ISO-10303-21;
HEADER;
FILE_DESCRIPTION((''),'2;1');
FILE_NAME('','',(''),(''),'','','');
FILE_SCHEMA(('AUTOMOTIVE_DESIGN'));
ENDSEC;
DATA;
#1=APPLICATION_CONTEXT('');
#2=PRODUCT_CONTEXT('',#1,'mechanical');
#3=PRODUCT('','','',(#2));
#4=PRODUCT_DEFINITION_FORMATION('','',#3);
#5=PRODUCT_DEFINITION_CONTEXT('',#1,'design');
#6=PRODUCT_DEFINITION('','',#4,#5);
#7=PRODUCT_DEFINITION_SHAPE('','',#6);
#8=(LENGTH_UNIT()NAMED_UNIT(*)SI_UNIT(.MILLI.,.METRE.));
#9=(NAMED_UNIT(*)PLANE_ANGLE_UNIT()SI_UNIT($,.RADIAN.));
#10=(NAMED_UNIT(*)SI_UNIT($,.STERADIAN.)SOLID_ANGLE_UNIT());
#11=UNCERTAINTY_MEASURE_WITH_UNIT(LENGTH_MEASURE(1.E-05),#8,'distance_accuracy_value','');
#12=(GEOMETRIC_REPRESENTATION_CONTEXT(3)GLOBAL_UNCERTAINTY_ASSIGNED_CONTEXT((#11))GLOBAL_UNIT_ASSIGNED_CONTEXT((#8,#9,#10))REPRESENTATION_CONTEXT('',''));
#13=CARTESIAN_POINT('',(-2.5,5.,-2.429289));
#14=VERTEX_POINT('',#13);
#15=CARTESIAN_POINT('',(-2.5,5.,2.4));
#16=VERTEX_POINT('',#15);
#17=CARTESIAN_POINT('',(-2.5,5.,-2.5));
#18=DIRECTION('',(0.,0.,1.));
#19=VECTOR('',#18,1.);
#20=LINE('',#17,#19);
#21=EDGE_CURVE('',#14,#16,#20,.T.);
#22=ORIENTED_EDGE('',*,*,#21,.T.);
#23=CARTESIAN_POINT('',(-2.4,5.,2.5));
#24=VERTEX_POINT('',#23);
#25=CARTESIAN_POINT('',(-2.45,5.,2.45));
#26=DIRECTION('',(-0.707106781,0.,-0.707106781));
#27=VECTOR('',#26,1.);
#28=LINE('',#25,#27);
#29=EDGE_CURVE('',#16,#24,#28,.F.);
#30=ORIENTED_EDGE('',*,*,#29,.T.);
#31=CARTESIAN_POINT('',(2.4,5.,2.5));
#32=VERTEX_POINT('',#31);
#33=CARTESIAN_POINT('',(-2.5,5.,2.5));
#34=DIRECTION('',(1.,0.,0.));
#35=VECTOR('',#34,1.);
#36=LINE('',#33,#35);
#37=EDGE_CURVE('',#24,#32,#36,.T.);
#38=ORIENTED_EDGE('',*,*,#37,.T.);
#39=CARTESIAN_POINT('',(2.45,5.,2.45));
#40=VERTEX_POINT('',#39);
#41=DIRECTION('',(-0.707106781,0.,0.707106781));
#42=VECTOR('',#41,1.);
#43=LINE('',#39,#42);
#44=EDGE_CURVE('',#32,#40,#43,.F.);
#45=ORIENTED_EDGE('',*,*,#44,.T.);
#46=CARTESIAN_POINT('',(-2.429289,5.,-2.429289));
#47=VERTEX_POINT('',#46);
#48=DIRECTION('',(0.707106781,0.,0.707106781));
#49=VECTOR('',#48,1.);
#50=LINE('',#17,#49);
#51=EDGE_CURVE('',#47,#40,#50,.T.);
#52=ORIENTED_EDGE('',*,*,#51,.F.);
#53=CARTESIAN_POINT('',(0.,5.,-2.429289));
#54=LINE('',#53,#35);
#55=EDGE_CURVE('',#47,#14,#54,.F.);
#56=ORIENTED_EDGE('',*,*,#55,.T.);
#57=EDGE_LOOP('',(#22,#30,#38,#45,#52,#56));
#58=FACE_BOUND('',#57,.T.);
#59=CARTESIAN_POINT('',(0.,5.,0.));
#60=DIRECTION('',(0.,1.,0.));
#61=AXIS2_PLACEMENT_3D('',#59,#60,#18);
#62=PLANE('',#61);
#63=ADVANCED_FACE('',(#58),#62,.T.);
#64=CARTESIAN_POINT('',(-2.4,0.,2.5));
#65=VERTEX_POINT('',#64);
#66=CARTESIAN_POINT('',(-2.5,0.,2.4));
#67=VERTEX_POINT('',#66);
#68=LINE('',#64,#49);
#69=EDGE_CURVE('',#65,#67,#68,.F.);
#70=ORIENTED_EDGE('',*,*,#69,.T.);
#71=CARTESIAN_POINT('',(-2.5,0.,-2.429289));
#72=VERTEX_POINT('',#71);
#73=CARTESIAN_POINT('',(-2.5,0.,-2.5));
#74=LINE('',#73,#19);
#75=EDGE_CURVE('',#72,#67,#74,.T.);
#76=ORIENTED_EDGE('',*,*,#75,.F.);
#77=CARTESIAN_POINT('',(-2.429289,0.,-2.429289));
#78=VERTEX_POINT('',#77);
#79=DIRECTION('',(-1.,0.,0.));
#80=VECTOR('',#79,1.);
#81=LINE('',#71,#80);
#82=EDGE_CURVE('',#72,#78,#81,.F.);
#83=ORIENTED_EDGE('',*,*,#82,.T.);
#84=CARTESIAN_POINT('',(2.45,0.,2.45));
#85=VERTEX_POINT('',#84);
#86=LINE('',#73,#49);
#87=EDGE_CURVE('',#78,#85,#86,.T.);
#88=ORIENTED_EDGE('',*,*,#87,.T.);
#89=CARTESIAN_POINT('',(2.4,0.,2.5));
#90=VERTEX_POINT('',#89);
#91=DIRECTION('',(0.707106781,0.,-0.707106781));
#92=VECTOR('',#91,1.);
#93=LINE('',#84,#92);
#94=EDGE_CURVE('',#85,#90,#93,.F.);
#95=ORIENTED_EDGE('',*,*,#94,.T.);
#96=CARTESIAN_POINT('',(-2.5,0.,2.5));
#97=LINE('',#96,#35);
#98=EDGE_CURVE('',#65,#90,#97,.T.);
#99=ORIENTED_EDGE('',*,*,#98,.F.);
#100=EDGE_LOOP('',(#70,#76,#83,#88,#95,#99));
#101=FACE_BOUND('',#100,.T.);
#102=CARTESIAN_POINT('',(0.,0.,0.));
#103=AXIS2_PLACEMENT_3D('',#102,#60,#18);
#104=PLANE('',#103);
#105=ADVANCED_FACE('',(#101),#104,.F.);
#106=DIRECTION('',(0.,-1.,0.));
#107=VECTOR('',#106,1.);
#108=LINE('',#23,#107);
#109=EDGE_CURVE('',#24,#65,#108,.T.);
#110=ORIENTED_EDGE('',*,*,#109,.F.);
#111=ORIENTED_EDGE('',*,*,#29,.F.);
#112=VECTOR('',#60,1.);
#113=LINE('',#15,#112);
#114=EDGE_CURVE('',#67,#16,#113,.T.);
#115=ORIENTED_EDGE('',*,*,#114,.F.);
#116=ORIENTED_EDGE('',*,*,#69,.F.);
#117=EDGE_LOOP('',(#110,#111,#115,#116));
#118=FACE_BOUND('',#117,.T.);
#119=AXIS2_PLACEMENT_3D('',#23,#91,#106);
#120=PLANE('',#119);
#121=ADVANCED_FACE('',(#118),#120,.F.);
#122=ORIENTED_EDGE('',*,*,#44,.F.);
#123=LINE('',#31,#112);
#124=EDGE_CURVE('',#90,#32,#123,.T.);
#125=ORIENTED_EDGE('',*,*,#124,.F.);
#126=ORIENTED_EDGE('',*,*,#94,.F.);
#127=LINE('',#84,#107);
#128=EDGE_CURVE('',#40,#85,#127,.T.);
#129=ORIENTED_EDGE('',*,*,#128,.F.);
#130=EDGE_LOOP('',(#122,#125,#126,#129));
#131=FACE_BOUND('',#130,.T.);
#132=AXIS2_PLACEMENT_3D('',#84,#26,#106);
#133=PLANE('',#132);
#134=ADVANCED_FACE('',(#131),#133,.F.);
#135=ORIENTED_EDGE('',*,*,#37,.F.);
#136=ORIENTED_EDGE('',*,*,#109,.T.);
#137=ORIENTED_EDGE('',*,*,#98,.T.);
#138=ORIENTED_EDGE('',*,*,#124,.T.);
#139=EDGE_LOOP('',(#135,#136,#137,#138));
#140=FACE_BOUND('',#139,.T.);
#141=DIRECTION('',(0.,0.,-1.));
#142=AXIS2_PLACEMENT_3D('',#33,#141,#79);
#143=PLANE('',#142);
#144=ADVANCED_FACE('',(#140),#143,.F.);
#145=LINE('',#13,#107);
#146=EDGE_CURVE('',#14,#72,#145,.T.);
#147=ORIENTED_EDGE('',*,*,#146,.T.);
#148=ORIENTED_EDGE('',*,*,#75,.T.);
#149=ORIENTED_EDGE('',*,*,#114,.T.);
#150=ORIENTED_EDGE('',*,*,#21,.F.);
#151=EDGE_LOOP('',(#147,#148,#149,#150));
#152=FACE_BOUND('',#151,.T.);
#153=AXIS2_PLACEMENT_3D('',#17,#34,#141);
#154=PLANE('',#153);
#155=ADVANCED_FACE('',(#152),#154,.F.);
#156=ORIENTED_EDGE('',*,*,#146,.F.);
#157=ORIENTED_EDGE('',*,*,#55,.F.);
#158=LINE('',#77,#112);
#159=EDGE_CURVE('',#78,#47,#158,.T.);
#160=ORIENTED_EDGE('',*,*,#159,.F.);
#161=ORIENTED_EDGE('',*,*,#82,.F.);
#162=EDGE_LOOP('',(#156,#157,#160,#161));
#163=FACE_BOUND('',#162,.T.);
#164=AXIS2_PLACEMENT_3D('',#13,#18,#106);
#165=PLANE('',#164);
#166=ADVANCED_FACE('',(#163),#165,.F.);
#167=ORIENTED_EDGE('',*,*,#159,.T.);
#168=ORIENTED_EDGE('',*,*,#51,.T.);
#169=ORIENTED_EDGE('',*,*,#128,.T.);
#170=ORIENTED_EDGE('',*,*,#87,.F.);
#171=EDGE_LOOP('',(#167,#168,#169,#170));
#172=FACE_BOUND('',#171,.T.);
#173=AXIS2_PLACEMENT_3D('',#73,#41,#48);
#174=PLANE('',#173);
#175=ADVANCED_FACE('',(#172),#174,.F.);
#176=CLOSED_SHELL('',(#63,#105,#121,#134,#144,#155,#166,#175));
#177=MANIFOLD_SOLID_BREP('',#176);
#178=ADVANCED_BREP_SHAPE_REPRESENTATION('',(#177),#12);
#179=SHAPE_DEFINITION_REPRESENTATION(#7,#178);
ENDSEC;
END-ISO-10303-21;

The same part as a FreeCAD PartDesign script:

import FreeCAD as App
import Part
import Sketcher

V = App.Vector
Q = App.Units.Quantity


def edges_at(feature, points):
    """Names of the edges that pass closest to the given points."""
    edges = feature.Shape.Edges
    near = lambda p: min(range(len(edges)), key=lambda i: edges[i].distToShape(Part.Vertex(*p))[0])
    return sorted({f"Edge{near(p) + 1}" for p in points})


def add_polygon(sketch, points):
    """Adds a closed chain of lines whose ends are joined by coincident constraints."""
    first, n = sketch.GeometryCount, len(points)
    for a, b in zip(points, points[1:] + points[:1]):
        sketch.addGeometry(Part.LineSegment(App.Vector(*a, 0), App.Vector(*b, 0)), False)
    for i in range(n):
        sketch.addConstraint(Sketcher.Constraint("Coincident", first + i, 2, first + (i + 1) % n, 1))

doc = App.newDocument("Part")
body = doc.addObject("PartDesign::Body", "Body")

# Sketch on XZ plane
sketch1 = body.newObject("Sketcher::SketchObject", "Sketch")
sketch1.AttachmentSupport = (doc.getObject("XZ_Plane"), [""])
sketch1.MapMode = "FlatFace"
add_polygon(sketch1, [(-2.5, -2.5), (-2.5, 2.5), (2.5, 2.5), (2.5, -2.5)])  # lines 0-3
sketch1.addConstraint(Sketcher.Constraint("Vertical", 0))
sketch1.addConstraint(Sketcher.Constraint("Horizontal", 1))
sketch1.addConstraint(Sketcher.Constraint("Vertical", 2))
sketch1.addConstraint(Sketcher.Constraint("Horizontal", 3))
sketch1.addConstraint(Sketcher.Constraint("Symmetric", 0, 2, 2, 2, -1, 1))
sketch1.addConstraint(Sketcher.Constraint("Equal", 3, 0))
sketch1.addConstraint(Sketcher.Constraint("DistanceX", 1, 1, 1, 2, Q("5 mm")))
pad1 = body.newObject("PartDesign::Pad", "Pad")
pad1.Profile = sketch1
pad1.Length = 5
pad1.Reversed = True

# Sketch on XZ plane
sketch2 = body.newObject("Sketcher::SketchObject", "Sketch001")
sketch2.AttachmentSupport = (doc.getObject("XZ_Plane"), [""])
sketch2.MapMode = "FlatFace"
sketch2.AttachmentOffset = App.Placement(V(0, 0, -5), App.Rotation())
add_polygon(sketch2, [(-2.5, -2.5), (2.5, 2.5), (2.5, -2.5)])  # lines 0-2
sketch2.addConstraint(Sketcher.Constraint("Vertical", 1))
sketch2.addConstraint(Sketcher.Constraint("Horizontal", 2))
sketch2.addConstraint(Sketcher.Constraint("Symmetric", 0, 2, 2, 2, -1, 1))
sketch2.addConstraint(Sketcher.Constraint("Equal", 2, 1))
sketch2.addConstraint(Sketcher.Constraint("DistanceX", 2, 2, 2, 1, Q("5 mm")))
pocket1 = body.newObject("PartDesign::Pocket", "Pocket")
pocket1.Profile = sketch2
pocket1.Length = 5
pocket1.Reversed = True
doc.recompute()

chamfer = body.newObject("PartDesign::Chamfer", "Chamfer")
chamfer.Base = (pocket1, edges_at(pocket1, [(2.5, 2.5, 2.5)]))
chamfer.ChamferType = "Two distances"
chamfer.Size = 0.1
chamfer.Size2 = 0.070711
chamfer.FlipDirection = True
doc.recompute()

chamfer2 = body.newObject("PartDesign::Chamfer", "Chamfer001")
chamfer2.Base = (chamfer, edges_at(chamfer, [(-2.5, 2.5, 2.5)]))
chamfer2.Size = 0.1
doc.recompute()

chamfer3 = body.newObject("PartDesign::Chamfer", "Chamfer002")
chamfer3.Base = (chamfer2, edges_at(chamfer2, [(-2.5, 2.5, -2.5)]))
chamfer3.ChamferType = "Two distances"
chamfer3.Size = 0.070711
chamfer3.Size2 = 0.1

doc.recompute()
